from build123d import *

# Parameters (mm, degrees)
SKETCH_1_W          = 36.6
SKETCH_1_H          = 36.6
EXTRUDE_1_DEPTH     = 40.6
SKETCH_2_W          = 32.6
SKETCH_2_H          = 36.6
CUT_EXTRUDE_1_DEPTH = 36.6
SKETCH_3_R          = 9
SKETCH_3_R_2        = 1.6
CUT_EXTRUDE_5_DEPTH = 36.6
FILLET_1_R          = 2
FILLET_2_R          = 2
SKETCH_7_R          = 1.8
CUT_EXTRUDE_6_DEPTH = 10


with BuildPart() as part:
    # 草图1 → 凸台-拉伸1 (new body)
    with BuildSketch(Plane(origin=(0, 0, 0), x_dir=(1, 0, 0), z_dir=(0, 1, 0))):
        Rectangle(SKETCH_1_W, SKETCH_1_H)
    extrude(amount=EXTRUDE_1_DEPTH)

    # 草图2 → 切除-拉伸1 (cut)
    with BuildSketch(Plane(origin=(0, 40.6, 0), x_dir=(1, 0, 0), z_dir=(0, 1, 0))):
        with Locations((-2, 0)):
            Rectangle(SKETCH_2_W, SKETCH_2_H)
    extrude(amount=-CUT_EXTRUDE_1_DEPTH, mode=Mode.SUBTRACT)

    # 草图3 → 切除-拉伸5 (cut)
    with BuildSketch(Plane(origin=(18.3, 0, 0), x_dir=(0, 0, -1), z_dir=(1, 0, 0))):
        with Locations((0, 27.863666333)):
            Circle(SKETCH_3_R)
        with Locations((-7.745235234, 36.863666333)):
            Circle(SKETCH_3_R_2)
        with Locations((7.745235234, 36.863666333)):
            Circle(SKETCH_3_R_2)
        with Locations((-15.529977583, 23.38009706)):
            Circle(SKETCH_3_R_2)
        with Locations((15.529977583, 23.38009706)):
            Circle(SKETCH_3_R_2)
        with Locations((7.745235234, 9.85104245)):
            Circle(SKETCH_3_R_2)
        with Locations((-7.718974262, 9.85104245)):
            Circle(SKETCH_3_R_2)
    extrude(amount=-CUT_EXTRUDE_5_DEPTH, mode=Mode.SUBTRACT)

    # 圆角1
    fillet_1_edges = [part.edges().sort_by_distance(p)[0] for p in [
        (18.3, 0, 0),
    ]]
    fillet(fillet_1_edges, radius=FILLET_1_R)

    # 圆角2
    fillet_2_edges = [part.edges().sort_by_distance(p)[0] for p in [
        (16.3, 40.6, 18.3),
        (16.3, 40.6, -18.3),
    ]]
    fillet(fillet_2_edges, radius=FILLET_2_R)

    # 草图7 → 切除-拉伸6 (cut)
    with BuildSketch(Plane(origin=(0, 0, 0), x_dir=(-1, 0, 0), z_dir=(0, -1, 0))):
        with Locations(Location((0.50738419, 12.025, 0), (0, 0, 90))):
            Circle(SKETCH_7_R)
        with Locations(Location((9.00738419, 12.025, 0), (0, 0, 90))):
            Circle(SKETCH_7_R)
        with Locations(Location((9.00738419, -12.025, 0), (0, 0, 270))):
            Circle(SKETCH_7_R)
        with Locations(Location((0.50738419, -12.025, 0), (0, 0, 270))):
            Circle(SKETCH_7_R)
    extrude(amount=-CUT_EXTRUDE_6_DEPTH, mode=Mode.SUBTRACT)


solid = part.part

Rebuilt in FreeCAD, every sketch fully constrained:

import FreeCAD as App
import Part
import Sketcher


def edges_at(feature, points):
    """Names of the edges that pass closest to the given points."""
    edges = feature.Shape.Edges
    near = lambda p: min(range(len(edges)), key=lambda i: edges[i].distToShape(Part.Vertex(*p))[0])
    return sorted({f"Edge{near(p) + 1}" for p in points})


def add_polygon(sketch, points):
    """Adds a closed chain of lines whose ends are joined by coincident constraints."""
    first, n = sketch.GeometryCount, len(points)
    for a, b in zip(points, points[1:] + points[:1]):
        sketch.addGeometry(Part.LineSegment(App.Vector(*a, 0), App.Vector(*b, 0)), False)
    for i in range(n):
        sketch.addConstraint(Sketcher.Constraint("Coincident", first + i, 2, first + (i + 1) % n, 1))

doc = App.newDocument("Part")
body = doc.addObject("PartDesign::Body", "Body")

# Sketch on XZ plane
sketch1 = body.newObject("Sketcher::SketchObject", "Sketch")
sketch1.AttachmentSupport = (doc.getObject("XZ_Plane"), [""])
sketch1.MapMode = "FlatFace"
add_polygon(sketch1, [(-18, -18), (-18, 18), (18, 18), (18, -18)])  # lines 0-3
sketch1.addConstraint(Sketcher.Constraint("Vertical", 0))
sketch1.addConstraint(Sketcher.Constraint("Horizontal", 1))
sketch1.addConstraint(Sketcher.Constraint("Vertical", 2))
sketch1.addConstraint(Sketcher.Constraint("Horizontal", 3))
sketch1.addConstraint(Sketcher.Constraint("Symmetric", 0, 2, 2, 2, -1, 1))
sketch1.addConstraint(Sketcher.Constraint("Equal", 3, 0))
sketch1.addConstraint(Sketcher.Constraint("DistanceX", 1, 1, 1, 2, 36.6))
pad1 = body.newObject("PartDesign::Pad", "Pad")
pad1.Profile = sketch1
pad1.Length = 40.6
pad1.Reversed = True

# Sketch on XZ plane
sketch2 = body.newObject("Sketcher::SketchObject", "Sketch001")
sketch2.AttachmentSupport = (doc.getObject("XZ_Plane"), [""])
sketch2.MapMode = "FlatFace"
sketch2.AttachmentOffset = App.Placement(App.Vector(0, 0, -40.6), App.Rotation())
add_polygon(sketch2, [(-18, -18), (-18, 18), (14, 18), (14, -18)])  # lines 0-3
sketch2.addConstraint(Sketcher.Constraint("Vertical", 0))
sketch2.addConstraint(Sketcher.Constraint("Horizontal", 1))
sketch2.addConstraint(Sketcher.Constraint("Vertical", 2))
sketch2.addConstraint(Sketcher.Constraint("Horizontal", 3))
sketch2.addConstraint(Sketcher.Constraint("DistanceX", 1, 1, 1, 2, 32.6))
sketch2.addConstraint(Sketcher.Constraint("DistanceY", 0, 1, 0, 2, 36.6))
sketch2.addConstraint(Sketcher.Constraint("DistanceX", 0, 2, -1, 1, 18.3))
sketch2.addConstraint(Sketcher.Constraint("DistanceY", -1, 1, 0, 2, 18.3))
pocket1 = body.newObject("PartDesign::Pocket", "Pocket")
pocket1.Profile = sketch2
pocket1.Length = 36.6
pocket1.Reversed = True

# Sketch on YZ plane
sketch3 = body.newObject("Sketcher::SketchObject", "Sketch002")
sketch3.AttachmentSupport = (doc.getObject("YZ_Plane"), [""])
sketch3.MapMode = "FlatFace"
sketch3.AttachmentOffset = App.Placement(App.Vector(0, 0, 18.3), App.Rotation())
sketch3.addGeometry(Part.Circle(App.Vector(27.9, 0, 0), App.Vector(0, 0, 1), 9), False)
sketch3.addGeometry(Part.Circle(App.Vector(36.9, 7.7, 0), App.Vector(0, 0, 1), 1.6), False)
sketch3.addGeometry(Part.Circle(App.Vector(36.9, -7.7, 0), App.Vector(0, 0, 1), 1.6), False)
sketch3.addGeometry(Part.Circle(App.Vector(23.4, 15.5, 0), App.Vector(0, 0, 1), 1.6), False)
sketch3.addGeometry(Part.Circle(App.Vector(23.4, -15.5, 0), App.Vector(0, 0, 1), 1.6), False)
sketch3.addGeometry(Part.Circle(App.Vector(9.9, -7.7, 0), App.Vector(0, 0, 1), 1.6), False)
sketch3.addGeometry(Part.Circle(App.Vector(9.9, 7.7, 0), App.Vector(0, 0, 1), 1.6), False)
sketch3.addConstraint(Sketcher.Constraint("Equal", 1, 2))
sketch3.addConstraint(Sketcher.Constraint("Equal", 2, 3))
sketch3.addConstraint(Sketcher.Constraint("Equal", 3, 4))
sketch3.addConstraint(Sketcher.Constraint("Equal", 4, 5))
sketch3.addConstraint(Sketcher.Constraint("Equal", 5, 6))
sketch3.addConstraint(Sketcher.Constraint("Symmetric", 1, 3, 2, 3, -1))
sketch3.addConstraint(Sketcher.Constraint("Symmetric", 3, 3, 4, 3, -1))
sketch3.addConstraint(Sketcher.Constraint("PointOnObject", 0, 3, -1))
sketch3.addConstraint(Sketcher.Constraint("Horizontal", 2, 3, 5, 3))
sketch3.addConstraint(Sketcher.Constraint("Vertical", 5, 3, 6, 3))
sketch3.addConstraint(Sketcher.Constraint("Diameter", 0, 18.0))
sketch3.addConstraint(Sketcher.Constraint("Diameter", 1, 3.2))
sketch3.addConstraint(Sketcher.Constraint("DistanceX", 0, 3, 1, 3, 9.0))
sketch3.addConstraint(Sketcher.Constraint("DistanceY", 2, 3, 1, 3, 15.49047))
sketch3.addConstraint(Sketcher.Constraint("DistanceX", 3, 3, 1, 3, 13.483569))
sketch3.addConstraint(Sketcher.Constraint("DistanceY", 5, 3, 6, 3, 15.464209))
sketch3.addConstraint(Sketcher.Constraint("DistanceY", 4, 3, 6, 3, 23.248952))
sketch3.addConstraint(Sketcher.Constraint("DistanceX", -1, 1, 0, 3, 27.863666))
sketch3.addConstraint(Sketcher.Constraint("DistanceX", -1, 1, 5, 3, 9.851042))
pocket2 = body.newObject("PartDesign::Pocket", "Pocket001")
pocket2.Profile = sketch3
pocket2.Length = 36.6
doc.recompute()

fillet = body.newObject("PartDesign::Fillet", "Fillet")
fillet.Base = (pocket2, edges_at(pocket2, [(18.3, 0, 0)]))
fillet.Radius = 2
doc.recompute()

fillet2 = body.newObject("PartDesign::Fillet", "Fillet001")
fillet2.Base = (fillet, edges_at(fillet, [(16.3, 40.6, 18.3), (16.3, 40.6, -18.3)]))
fillet2.Radius = 2

# Sketch on XZ plane
sketch4 = body.newObject("Sketcher::SketchObject", "Sketch003")
sketch4.AttachmentSupport = (doc.getObject("XZ_Plane"), [""])
sketch4.MapMode = "FlatFace"
sketch4.addGeometry(Part.Circle(App.Vector(-0.5, -12, 0), App.Vector(0, 0, 1), 1.8), False)
sketch4.addGeometry(Part.Circle(App.Vector(-9, -12, 0), App.Vector(0, 0, 1), 1.8), False)
sketch4.addGeometry(Part.Circle(App.Vector(-9, 12, 0), App.Vector(0, 0, 1), 1.8), False)
sketch4.addGeometry(Part.Circle(App.Vector(-0.5, 12, 0), App.Vector(0, 0, 1), 1.8), False)
sketch4.addConstraint(Sketcher.Constraint("Equal", 0, 1))
sketch4.addConstraint(Sketcher.Constraint("Equal", 1, 2))
sketch4.addConstraint(Sketcher.Constraint("Equal", 2, 3))
sketch4.addConstraint(Sketcher.Constraint("Symmetric", 1, 3, 2, 3, -1))
sketch4.addConstraint(Sketcher.Constraint("Symmetric", 0, 3, 3, 3, -1))
sketch4.addConstraint(Sketcher.Constraint("Horizontal", 0, 3, 1, 3))
sketch4.addConstraint(Sketcher.Constraint("Diameter", 0, 3.6))
sketch4.addConstraint(Sketcher.Constraint("DistanceX", 1, 3, 0, 3, 8.5))
sketch4.addConstraint(Sketcher.Constraint("DistanceY", 1, 3, 2, 3, 24.05))
sketch4.addConstraint(Sketcher.Constraint("DistanceX", 0, 3, -1, 1, 0.507384))
pocket3 = body.newObject("PartDesign::Pocket", "Pocket002")
pocket3.Profile = sketch4
pocket3.Length = 10

doc.recompute()
